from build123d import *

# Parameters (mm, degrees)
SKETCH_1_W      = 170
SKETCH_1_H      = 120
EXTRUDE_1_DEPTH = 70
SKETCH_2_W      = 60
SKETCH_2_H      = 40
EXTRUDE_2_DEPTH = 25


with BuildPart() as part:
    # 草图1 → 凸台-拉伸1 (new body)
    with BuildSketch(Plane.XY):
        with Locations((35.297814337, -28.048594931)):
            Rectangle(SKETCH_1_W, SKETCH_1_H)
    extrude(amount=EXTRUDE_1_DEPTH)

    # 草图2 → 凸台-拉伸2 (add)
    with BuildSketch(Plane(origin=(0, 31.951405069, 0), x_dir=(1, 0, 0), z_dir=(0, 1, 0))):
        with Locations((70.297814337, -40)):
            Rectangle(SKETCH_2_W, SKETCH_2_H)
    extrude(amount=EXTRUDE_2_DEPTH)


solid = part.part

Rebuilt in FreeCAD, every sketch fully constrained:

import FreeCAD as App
import Part
import Sketcher

V = App.Vector
Q = App.Units.Quantity

doc = App.newDocument("Part")
body = doc.addObject("PartDesign::Body", "Body")

# Sketch on XY plane
sketch1 = doc.addObject("Sketcher::SketchObject", "Sketch")
body.addObject(sketch1)
sketch1.AttachmentSupport = (doc.XY_Plane, [""])
sketch1.MapMode = "FlatFace"
sketch1.addGeometry([
    Part.LineSegment(V(-49.702186, 31.951405, 0), V(-49.702186, -88.048595, 0)),
    Part.LineSegment(V(-49.702186, -88.048595, 0), V(120.297814, -88.048595, 0)),
    Part.LineSegment(V(120.297814, -88.048595, 0), V(120.297814, 31.951405, 0)),
    Part.LineSegment(V(120.297814, 31.951405, 0), V(-49.702186, 31.951405, 0)),
], False)
sketch1.addConstraint([
    Sketcher.Constraint("Coincident", 0, 2, 1, 1),
    Sketcher.Constraint("Coincident", 1, 2, 2, 1),
    Sketcher.Constraint("Coincident", 2, 2, 3, 1),
    Sketcher.Constraint("Coincident", 3, 2, 0, 1),
    Sketcher.Constraint("Vertical", 0),
    Sketcher.Constraint("Horizontal", 1),
    Sketcher.Constraint("Vertical", 2),
    Sketcher.Constraint("Horizontal", 3),
    Sketcher.Constraint("DistanceX", 1, 1, 1, 2, Q("170 mm")),
    Sketcher.Constraint("DistanceY", 0, 2, 0, 1, Q("120 mm")),
    Sketcher.Constraint("DistanceX", 0, 2, -1, 1, Q("49.702186 mm")),
    Sketcher.Constraint("DistanceY", 0, 2, -1, 1, Q("88.048595 mm")),
])
pad1 = doc.addObject("PartDesign::Pad", "Pad")
body.addObject(pad1)
pad1.Profile = sketch1
pad1.Length = 70

# Sketch on XZ plane
sketch2 = doc.addObject("Sketcher::SketchObject", "Sketch001")
body.addObject(sketch2)
sketch2.AttachmentSupport = (doc.XZ_Plane, [""])
sketch2.MapMode = "FlatFace"
sketch2.AttachmentOffset = App.Placement(V(0, 0, -31.951405), App.Rotation())
sketch2.addGeometry([
    Part.LineSegment(V(40.297814, 20, 0), V(40.297814, 60, 0)),
    Part.LineSegment(V(40.297814, 60, 0), V(100.297814, 60, 0)),
    Part.LineSegment(V(100.297814, 60, 0), V(100.297814, 20, 0)),
    Part.LineSegment(V(100.297814, 20, 0), V(40.297814, 20, 0)),
], False)
sketch2.addConstraint([
    Sketcher.Constraint("Coincident", 0, 2, 1, 1),
    Sketcher.Constraint("Coincident", 1, 2, 2, 1),
    Sketcher.Constraint("Coincident", 2, 2, 3, 1),
    Sketcher.Constraint("Coincident", 3, 2, 0, 1),
    Sketcher.Constraint("Vertical", 0),
    Sketcher.Constraint("Horizontal", 1),
    Sketcher.Constraint("Vertical", 2),
    Sketcher.Constraint("Horizontal", 3),
    Sketcher.Constraint("DistanceX", 1, 1, 1, 2, Q("60 mm")),
    Sketcher.Constraint("DistanceY", 0, 1, 0, 2, Q("40 mm")),
    Sketcher.Constraint("DistanceY", -1, 1, 0, 2, Q("60 mm")),
    Sketcher.Constraint("DistanceX", -1, 1, 0, 2, Q("40.297814 mm")),
])
pad2 = doc.addObject("PartDesign::Pad", "Pad001")
body.addObject(pad2)
pad2.Profile = sketch2
pad2.Length = 25
pad2.Reversed = True

doc.recompute()
